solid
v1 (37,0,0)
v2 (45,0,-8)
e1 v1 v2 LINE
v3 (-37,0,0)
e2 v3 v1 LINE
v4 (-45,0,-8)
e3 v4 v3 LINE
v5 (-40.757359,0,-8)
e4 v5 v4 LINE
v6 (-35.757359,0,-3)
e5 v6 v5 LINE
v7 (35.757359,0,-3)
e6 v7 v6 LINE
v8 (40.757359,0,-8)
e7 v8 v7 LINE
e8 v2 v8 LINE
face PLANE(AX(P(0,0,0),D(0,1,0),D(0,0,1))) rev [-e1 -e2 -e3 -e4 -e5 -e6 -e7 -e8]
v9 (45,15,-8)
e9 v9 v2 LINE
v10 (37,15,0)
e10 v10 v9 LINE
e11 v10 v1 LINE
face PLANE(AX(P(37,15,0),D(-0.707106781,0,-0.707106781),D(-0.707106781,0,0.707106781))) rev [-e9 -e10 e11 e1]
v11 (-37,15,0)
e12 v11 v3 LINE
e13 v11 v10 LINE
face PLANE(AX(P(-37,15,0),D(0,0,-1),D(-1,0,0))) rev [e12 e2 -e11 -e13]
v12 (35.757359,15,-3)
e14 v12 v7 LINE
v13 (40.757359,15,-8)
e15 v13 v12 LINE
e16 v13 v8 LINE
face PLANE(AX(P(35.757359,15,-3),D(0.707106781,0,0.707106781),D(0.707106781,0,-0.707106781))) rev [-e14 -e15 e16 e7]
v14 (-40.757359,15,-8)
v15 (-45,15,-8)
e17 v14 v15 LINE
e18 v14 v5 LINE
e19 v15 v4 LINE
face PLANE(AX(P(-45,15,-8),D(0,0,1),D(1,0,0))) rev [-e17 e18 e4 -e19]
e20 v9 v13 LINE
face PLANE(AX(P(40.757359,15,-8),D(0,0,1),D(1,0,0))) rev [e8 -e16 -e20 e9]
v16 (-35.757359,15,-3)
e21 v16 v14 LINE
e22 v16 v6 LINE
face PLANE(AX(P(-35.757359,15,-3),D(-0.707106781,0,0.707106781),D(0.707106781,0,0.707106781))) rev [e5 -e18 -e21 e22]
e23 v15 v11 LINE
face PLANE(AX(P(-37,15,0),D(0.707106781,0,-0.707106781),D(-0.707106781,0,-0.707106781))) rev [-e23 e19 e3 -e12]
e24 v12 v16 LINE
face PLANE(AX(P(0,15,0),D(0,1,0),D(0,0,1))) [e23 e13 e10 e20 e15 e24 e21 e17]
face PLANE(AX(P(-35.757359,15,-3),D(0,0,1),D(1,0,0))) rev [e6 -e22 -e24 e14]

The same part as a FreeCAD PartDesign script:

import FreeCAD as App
import Part
import Sketcher
from FreeCAD import Vector
Q = App.Units.Quantity

doc = App.newDocument("Part")
body = doc.addObject("PartDesign::Body", "Body")

# Sketch on XZ plane
sketch1 = body.newObject("Sketcher::SketchObject", "Sketch")
sketch1.AttachmentSupport = (doc.getObject("XZ_Plane"), [""])
sketch1.MapMode = "FlatFace"
sketch1.addGeometry([
    Part.LineSegment(Vector(-37, 0, 0), Vector(37, 0, 0)),  # 0
    Part.LineSegment(Vector(37, 0, 0), Vector(45, -8, 0)),  # 1
    Part.LineSegment(Vector(45, -8, 0), Vector(40.8, -8, 0)),  # 2
    Part.LineSegment(Vector(40.8, -8, 0), Vector(35.8, -3, 0)),  # 3
    Part.LineSegment(Vector(35.8, -3, 0), Vector(-35.8, -3, 0)),  # 4
    Part.LineSegment(Vector(-35.8, -3, 0), Vector(-40.8, -8, 0)),  # 5
    Part.LineSegment(Vector(-40.8, -8, 0), Vector(-45, -8, 0)),  # 6
    Part.LineSegment(Vector(-45, -8, 0), Vector(-37, 0, 0)),  # 7
], False)
sketch1.addConstraint([
    Sketcher.Constraint("Coincident", 0, 2, 1, 1),
    Sketcher.Constraint("Coincident", 1, 2, 2, 1),
    Sketcher.Constraint("Coincident", 2, 2, 3, 1),
    Sketcher.Constraint("Coincident", 3, 2, 4, 1),
    Sketcher.Constraint("Coincident", 4, 2, 5, 1),
    Sketcher.Constraint("Coincident", 5, 2, 6, 1),
    Sketcher.Constraint("Coincident", 6, 2, 7, 1),
    Sketcher.Constraint("Coincident", 7, 2, 0, 1),
    Sketcher.Constraint("Horizontal", 0),
    Sketcher.Constraint("Horizontal", 2),
    Sketcher.Constraint("Horizontal", 4),
    Sketcher.Constraint("Horizontal", 6),
    Sketcher.Constraint("Symmetric", 0, 2, 7, 2, -1, 1),
    Sketcher.Constraint("Symmetric", 2, 2, 5, 2, -2),
    Sketcher.Constraint("Parallel", 1, 3),
    Sketcher.Constraint("Perpendicular", 3, 5),
    Sketcher.Constraint("Parallel", 5, 7),
    Sketcher.Constraint("Equal", 2, 6),
    Sketcher.Constraint("DistanceX", 0, 1, 0, 2, Q("74 mm")),
    Sketcher.Constraint("DistanceX", -1, 1, 1, 2, Q("45 mm")),
    Sketcher.Constraint("DistanceY", 3, 2, -1, 1, Q("3 mm")),
    Sketcher.Constraint("DistanceX", 2, 2, 2, 1, Q("4.242641 mm")),
])
pad1 = body.newObject("PartDesign::Pad", "Pad")
pad1.Profile = sketch1
pad1.Length = 15
pad1.Reversed = True

doc.recompute()
